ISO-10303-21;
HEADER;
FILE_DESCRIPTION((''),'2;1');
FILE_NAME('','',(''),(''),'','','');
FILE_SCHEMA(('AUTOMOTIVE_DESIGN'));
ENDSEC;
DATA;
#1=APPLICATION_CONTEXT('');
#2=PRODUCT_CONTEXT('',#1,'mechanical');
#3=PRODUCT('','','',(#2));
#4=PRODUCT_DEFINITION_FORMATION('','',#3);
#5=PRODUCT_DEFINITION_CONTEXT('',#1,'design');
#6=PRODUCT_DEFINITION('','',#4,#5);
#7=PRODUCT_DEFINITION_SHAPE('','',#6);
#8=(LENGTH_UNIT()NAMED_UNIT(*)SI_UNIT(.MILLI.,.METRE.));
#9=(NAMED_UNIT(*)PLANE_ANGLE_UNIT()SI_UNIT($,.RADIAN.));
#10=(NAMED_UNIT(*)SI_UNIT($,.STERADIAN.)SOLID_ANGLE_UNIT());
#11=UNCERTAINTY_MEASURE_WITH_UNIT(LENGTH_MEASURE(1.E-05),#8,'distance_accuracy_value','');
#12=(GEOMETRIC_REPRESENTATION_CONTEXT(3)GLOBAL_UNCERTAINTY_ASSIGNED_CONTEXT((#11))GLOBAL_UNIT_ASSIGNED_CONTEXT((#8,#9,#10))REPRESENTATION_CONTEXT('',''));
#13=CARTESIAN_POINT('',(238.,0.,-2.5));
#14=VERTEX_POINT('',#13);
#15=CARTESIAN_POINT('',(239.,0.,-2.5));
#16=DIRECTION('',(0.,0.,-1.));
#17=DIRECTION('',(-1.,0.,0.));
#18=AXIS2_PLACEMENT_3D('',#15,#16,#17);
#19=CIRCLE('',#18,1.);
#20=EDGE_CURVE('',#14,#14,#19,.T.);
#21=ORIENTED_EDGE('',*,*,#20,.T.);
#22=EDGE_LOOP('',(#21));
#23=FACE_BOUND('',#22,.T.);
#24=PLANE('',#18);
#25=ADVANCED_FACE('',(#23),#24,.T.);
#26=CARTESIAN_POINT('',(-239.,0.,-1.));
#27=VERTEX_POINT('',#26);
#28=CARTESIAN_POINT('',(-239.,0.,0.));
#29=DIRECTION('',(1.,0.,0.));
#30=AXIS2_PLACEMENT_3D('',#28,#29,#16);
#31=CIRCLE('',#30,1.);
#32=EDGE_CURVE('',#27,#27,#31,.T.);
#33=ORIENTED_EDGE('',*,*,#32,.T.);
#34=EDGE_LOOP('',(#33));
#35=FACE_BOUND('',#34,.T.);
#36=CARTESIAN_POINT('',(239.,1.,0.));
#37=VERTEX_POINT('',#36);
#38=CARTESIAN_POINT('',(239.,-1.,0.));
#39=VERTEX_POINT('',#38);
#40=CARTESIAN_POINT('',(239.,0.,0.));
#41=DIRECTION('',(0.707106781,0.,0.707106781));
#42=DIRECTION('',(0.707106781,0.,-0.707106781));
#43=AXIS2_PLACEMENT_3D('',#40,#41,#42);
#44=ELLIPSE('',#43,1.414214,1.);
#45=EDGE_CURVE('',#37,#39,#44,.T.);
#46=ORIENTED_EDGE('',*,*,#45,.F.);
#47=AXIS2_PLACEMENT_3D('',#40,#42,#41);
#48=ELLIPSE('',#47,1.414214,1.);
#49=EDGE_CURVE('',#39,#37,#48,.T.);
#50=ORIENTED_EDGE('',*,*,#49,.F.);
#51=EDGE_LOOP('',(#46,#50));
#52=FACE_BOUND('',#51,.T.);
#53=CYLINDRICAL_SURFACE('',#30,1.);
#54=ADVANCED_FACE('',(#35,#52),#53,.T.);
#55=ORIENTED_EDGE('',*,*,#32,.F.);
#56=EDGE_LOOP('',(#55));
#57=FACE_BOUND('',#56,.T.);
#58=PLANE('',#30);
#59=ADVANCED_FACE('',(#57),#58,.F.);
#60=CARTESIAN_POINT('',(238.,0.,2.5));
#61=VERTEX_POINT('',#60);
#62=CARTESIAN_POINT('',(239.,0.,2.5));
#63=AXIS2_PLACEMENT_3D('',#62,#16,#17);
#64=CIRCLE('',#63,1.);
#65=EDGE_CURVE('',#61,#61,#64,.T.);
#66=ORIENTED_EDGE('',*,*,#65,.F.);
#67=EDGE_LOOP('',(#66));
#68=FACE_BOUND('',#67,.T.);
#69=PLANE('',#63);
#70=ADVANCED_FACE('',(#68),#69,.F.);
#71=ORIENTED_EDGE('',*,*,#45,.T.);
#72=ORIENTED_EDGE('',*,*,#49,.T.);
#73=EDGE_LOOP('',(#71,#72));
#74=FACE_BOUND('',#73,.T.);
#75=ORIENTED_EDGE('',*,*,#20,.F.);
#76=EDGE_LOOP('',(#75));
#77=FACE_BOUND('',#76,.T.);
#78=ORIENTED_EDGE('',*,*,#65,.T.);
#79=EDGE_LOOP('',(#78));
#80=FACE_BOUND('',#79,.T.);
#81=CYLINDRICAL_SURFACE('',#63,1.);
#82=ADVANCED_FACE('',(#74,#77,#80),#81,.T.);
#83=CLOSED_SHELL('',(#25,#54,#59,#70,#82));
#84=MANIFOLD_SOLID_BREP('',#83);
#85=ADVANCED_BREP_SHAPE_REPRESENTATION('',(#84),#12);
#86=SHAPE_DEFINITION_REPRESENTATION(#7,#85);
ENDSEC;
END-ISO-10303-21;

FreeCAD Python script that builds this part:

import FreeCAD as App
import Part
import Sketcher

V = App.Vector
Q = App.Units.Quantity

doc = App.newDocument("Part")
body = doc.addObject("PartDesign::Body", "Body")

# Sketch on YZ plane
sketch1 = body.newObject("Sketcher::SketchObject", "Sketch")
sketch1.AttachmentSupport = (doc.getObject("YZ_Plane"), [""])
sketch1.MapMode = "FlatFace"
sketch1.AttachmentOffset = App.Placement(V(0, 0, -239), App.Rotation())
sketch1.addGeometry(Part.Circle(V(0, 0, 0), V(0, 0, 1), 1), False)
sketch1.addConstraint([
    Sketcher.Constraint("Coincident", 0, 3, -1, 1),
    Sketcher.Constraint("Diameter", 0, Q("2 mm")),
])

# Sketch on XY plane
sketch2 = body.newObject("Sketcher::SketchObject", "Sketch001")
sketch2.AttachmentSupport = (doc.getObject("XY_Plane"), [""])
sketch2.MapMode = "FlatFace"
sketch2.addGeometry(Part.LineSegment(V(-239, 0, 0), V(239, 0, 0)), False)
sketch2.addConstraint([
    Sketcher.Constraint("Horizontal", 0),
    Sketcher.Constraint("Symmetric", 0, 1, 0, 2, -1, 1),
    Sketcher.Constraint("DistanceX", 0, 1, 0, 2, Q("478 mm")),
])
doc.recompute()

additivepipe = body.newObject("PartDesign::AdditivePipe", "AdditivePipe")
additivepipe.Profile = sketch1
additivepipe.Spine = (sketch2, ["Edge1"])

# Sketch on XY plane
sketch3 = body.newObject("Sketcher::SketchObject", "Sketch002")
sketch3.AttachmentSupport = (doc.getObject("XY_Plane"), [""])
sketch3.MapMode = "FlatFace"
sketch3.AttachmentOffset = App.Placement(V(0, 0, 2.5), App.Rotation())
sketch3.addGeometry(Part.Circle(V(239, 0, 0), V(0, 0, 1), 1), False)
sketch3.addConstraint([
    Sketcher.Constraint("PointOnObject", 0, 3, -1),
    Sketcher.Constraint("Diameter", 0, Q("2 mm")),
    Sketcher.Constraint("DistanceX", -1, 1, 0, 3, Q("239 mm")),
])

# Sketch on XZ plane
sketch4 = body.newObject("Sketcher::SketchObject", "Sketch003")
sketch4.AttachmentSupport = (doc.getObject("XZ_Plane"), [""])
sketch4.MapMode = "FlatFace"
sketch4.addGeometry(Part.LineSegment(V(239, 2, 0), V(239, -2, 0)), False)
sketch4.addConstraint([
    Sketcher.Constraint("Vertical", 0),
    Sketcher.Constraint("DistanceY", 0, 2, 0, 1, Q("5 mm")),
    Sketcher.Constraint("DistanceX", -1, 1, 0, 1, Q("239 mm")),
    Sketcher.Constraint("DistanceY", -1, 1, 0, 1, Q("2.5 mm")),
])
doc.recompute()

additivepipe2 = body.newObject("PartDesign::AdditivePipe", "AdditivePipe001")
additivepipe2.Profile = sketch3
additivepipe2.Spine = (sketch4, ["Edge1"])

doc.recompute()
